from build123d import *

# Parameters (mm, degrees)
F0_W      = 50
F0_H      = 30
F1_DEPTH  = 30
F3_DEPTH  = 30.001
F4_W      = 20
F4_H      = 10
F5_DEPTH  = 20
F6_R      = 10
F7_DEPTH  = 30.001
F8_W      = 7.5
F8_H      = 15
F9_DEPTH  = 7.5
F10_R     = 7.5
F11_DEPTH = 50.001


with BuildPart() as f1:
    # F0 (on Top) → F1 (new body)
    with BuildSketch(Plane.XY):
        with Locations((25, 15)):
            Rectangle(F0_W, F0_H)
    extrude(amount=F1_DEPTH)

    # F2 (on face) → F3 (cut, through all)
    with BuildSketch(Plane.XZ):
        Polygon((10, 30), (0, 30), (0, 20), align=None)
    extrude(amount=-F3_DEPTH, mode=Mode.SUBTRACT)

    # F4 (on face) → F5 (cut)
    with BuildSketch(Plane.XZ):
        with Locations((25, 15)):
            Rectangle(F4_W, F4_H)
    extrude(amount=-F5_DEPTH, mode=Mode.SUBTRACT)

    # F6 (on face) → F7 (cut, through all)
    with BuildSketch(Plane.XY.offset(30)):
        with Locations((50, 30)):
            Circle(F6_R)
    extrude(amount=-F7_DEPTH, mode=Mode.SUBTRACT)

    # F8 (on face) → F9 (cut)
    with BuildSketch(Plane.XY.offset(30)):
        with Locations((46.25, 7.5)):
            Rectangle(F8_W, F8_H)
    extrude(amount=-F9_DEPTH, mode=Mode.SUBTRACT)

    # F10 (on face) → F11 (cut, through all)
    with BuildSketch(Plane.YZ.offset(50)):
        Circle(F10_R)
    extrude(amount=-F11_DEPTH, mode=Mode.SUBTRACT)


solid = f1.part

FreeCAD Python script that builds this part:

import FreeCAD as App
import Part
import Sketcher
Q = App.Units.Quantity


def add_polygon(sketch, points):
    """Adds a closed chain of lines whose ends are joined by coincident constraints."""
    first, n = sketch.GeometryCount, len(points)
    for a, b in zip(points, points[1:] + points[:1]):
        sketch.addGeometry(Part.LineSegment(App.Vector(*a, 0), App.Vector(*b, 0)), False)
    for i in range(n):
        sketch.addConstraint(Sketcher.Constraint("Coincident", first + i, 2, first + (i + 1) % n, 1))

doc = App.newDocument("Part")
body = doc.addObject("PartDesign::Body", "Body")

# Sketch on XY plane
sketch1 = body.newObject("Sketcher::SketchObject", "Sketch")
sketch1.AttachmentSupport = (doc.getObject("XY_Plane"), [""])
sketch1.MapMode = "FlatFace"
add_polygon(sketch1, [(0, 30), (0, 0), (50, 0), (50, 30)])  # lines 0-3
sketch1.addConstraint(Sketcher.Constraint("Vertical", 0))
sketch1.addConstraint(Sketcher.Constraint("Horizontal", 1))
sketch1.addConstraint(Sketcher.Constraint("Vertical", 2))
sketch1.addConstraint(Sketcher.Constraint("Horizontal", 3))
sketch1.addConstraint(Sketcher.Constraint("Coincident", 0, 2, -1, 1))
sketch1.addConstraint(Sketcher.Constraint("DistanceX", 1, 1, 1, 2, Q("50 mm")))
sketch1.addConstraint(Sketcher.Constraint("DistanceY", 0, 2, 0, 1, Q("30 mm")))
pad1 = body.newObject("PartDesign::Pad", "Pad")
pad1.Profile = sketch1
pad1.Length = 30

# Sketch on XZ plane
sketch2 = body.newObject("Sketcher::SketchObject", "Sketch001")
sketch2.AttachmentSupport = (doc.getObject("XZ_Plane"), [""])
sketch2.MapMode = "FlatFace"
add_polygon(sketch2, [(10, 30), (0, 30), (0, 20)])  # lines 0-2
sketch2.addConstraint(Sketcher.Constraint("Horizontal", 0))
sketch2.addConstraint(Sketcher.Constraint("Vertical", 1))
sketch2.addConstraint(Sketcher.Constraint("PointOnObject", 0, 2, -2))
sketch2.addConstraint(Sketcher.Constraint("Equal", 0, 1))
sketch2.addConstraint(Sketcher.Constraint("DistanceX", 0, 2, 0, 1, Q("10 mm")))
sketch2.addConstraint(Sketcher.Constraint("DistanceY", -1, 1, 0, 2, Q("30 mm")))
pocket1 = body.newObject("PartDesign::Pocket", "Pocket")
pocket1.Profile = sketch2
pocket1.Type = "ThroughAll"

# Sketch on XZ plane
sketch3 = body.newObject("Sketcher::SketchObject", "Sketch002")
sketch3.AttachmentSupport = (doc.getObject("XZ_Plane"), [""])
sketch3.MapMode = "FlatFace"
add_polygon(sketch3, [(15, 20), (15, 10), (35, 10), (35, 20)])  # lines 0-3
sketch3.addConstraint(Sketcher.Constraint("Vertical", 0))
sketch3.addConstraint(Sketcher.Constraint("Horizontal", 1))
sketch3.addConstraint(Sketcher.Constraint("Vertical", 2))
sketch3.addConstraint(Sketcher.Constraint("Horizontal", 3))
sketch3.addConstraint(Sketcher.Constraint("DistanceX", 1, 1, 1, 2, Q("20 mm")))
sketch3.addConstraint(Sketcher.Constraint("DistanceY", 0, 2, 0, 1, Q("10 mm")))
sketch3.addConstraint(Sketcher.Constraint("DistanceX", -1, 1, 0, 2, Q("15 mm")))
sketch3.addConstraint(Sketcher.Constraint("DistanceY", -1, 1, 0, 2, Q("10 mm")))
pocket2 = body.newObject("PartDesign::Pocket", "Pocket001")
pocket2.Profile = sketch3
pocket2.Length = 20

# Sketch on XY plane
sketch4 = body.newObject("Sketcher::SketchObject", "Sketch003")
sketch4.AttachmentSupport = (doc.getObject("XY_Plane"), [""])
sketch4.MapMode = "FlatFace"
sketch4.AttachmentOffset = App.Placement(App.Vector(0, 0, 30), App.Rotation())
sketch4.addGeometry(Part.Circle(App.Vector(50, 30, 0), App.Vector(0, 0, 1), 10), False)
sketch4.addConstraint(Sketcher.Constraint("Diameter", 0, Q("20 mm")))
sketch4.addConstraint(Sketcher.Constraint("DistanceX", -1, 1, 0, 3, Q("50 mm")))
sketch4.addConstraint(Sketcher.Constraint("DistanceY", -1, 1, 0, 3, Q("30 mm")))
pocket3 = body.newObject("PartDesign::Pocket", "Pocket002")
pocket3.Profile = sketch4
pocket3.Type = "ThroughAll"

# Sketch on XY plane
sketch5 = body.newObject("Sketcher::SketchObject", "Sketch004")
sketch5.AttachmentSupport = (doc.getObject("XY_Plane"), [""])
sketch5.MapMode = "FlatFace"
sketch5.AttachmentOffset = App.Placement(App.Vector(0, 0, 30), App.Rotation())
add_polygon(sketch5, [(42, 15), (42, 0), (50, 0), (50, 15)])  # lines 0-3
sketch5.addConstraint(Sketcher.Constraint("Vertical", 0))
sketch5.addConstraint(Sketcher.Constraint("Horizontal", 1))
sketch5.addConstraint(Sketcher.Constraint("Vertical", 2))
sketch5.addConstraint(Sketcher.Constraint("Horizontal", 3))
sketch5.addConstraint(Sketcher.Constraint("PointOnObject", 0, 2, -1))
sketch5.addConstraint(Sketcher.Constraint("DistanceY", 0, 2, 0, 1, Q("15 mm")))
sketch5.addConstraint(Sketcher.Constraint("DistanceX", 1, 1, 1, 2, Q("7.5 mm")))
sketch5.addConstraint(Sketcher.Constraint("DistanceX", -1, 1, 1, 2, Q("50 mm")))
pocket4 = body.newObject("PartDesign::Pocket", "Pocket003")
pocket4.Profile = sketch5
pocket4.Length = 7.5

# Sketch on YZ plane
sketch6 = body.newObject("Sketcher::SketchObject", "Sketch005")
sketch6.AttachmentSupport = (doc.getObject("YZ_Plane"), [""])
sketch6.MapMode = "FlatFace"
sketch6.AttachmentOffset = App.Placement(App.Vector(0, 0, 50), App.Rotation())
sketch6.addGeometry(Part.Circle(App.Vector(0, 0, 0), App.Vector(0, 0, 1), 8), False)
sketch6.addConstraint(Sketcher.Constraint("Coincident", 0, 3, -1, 1))
sketch6.addConstraint(Sketcher.Constraint("Diameter", 0, Q("15 mm")))
pocket5 = body.newObject("PartDesign::Pocket", "Pocket004")
pocket5.Profile = sketch6
pocket5.Type = "ThroughAll"

doc.recompute()
